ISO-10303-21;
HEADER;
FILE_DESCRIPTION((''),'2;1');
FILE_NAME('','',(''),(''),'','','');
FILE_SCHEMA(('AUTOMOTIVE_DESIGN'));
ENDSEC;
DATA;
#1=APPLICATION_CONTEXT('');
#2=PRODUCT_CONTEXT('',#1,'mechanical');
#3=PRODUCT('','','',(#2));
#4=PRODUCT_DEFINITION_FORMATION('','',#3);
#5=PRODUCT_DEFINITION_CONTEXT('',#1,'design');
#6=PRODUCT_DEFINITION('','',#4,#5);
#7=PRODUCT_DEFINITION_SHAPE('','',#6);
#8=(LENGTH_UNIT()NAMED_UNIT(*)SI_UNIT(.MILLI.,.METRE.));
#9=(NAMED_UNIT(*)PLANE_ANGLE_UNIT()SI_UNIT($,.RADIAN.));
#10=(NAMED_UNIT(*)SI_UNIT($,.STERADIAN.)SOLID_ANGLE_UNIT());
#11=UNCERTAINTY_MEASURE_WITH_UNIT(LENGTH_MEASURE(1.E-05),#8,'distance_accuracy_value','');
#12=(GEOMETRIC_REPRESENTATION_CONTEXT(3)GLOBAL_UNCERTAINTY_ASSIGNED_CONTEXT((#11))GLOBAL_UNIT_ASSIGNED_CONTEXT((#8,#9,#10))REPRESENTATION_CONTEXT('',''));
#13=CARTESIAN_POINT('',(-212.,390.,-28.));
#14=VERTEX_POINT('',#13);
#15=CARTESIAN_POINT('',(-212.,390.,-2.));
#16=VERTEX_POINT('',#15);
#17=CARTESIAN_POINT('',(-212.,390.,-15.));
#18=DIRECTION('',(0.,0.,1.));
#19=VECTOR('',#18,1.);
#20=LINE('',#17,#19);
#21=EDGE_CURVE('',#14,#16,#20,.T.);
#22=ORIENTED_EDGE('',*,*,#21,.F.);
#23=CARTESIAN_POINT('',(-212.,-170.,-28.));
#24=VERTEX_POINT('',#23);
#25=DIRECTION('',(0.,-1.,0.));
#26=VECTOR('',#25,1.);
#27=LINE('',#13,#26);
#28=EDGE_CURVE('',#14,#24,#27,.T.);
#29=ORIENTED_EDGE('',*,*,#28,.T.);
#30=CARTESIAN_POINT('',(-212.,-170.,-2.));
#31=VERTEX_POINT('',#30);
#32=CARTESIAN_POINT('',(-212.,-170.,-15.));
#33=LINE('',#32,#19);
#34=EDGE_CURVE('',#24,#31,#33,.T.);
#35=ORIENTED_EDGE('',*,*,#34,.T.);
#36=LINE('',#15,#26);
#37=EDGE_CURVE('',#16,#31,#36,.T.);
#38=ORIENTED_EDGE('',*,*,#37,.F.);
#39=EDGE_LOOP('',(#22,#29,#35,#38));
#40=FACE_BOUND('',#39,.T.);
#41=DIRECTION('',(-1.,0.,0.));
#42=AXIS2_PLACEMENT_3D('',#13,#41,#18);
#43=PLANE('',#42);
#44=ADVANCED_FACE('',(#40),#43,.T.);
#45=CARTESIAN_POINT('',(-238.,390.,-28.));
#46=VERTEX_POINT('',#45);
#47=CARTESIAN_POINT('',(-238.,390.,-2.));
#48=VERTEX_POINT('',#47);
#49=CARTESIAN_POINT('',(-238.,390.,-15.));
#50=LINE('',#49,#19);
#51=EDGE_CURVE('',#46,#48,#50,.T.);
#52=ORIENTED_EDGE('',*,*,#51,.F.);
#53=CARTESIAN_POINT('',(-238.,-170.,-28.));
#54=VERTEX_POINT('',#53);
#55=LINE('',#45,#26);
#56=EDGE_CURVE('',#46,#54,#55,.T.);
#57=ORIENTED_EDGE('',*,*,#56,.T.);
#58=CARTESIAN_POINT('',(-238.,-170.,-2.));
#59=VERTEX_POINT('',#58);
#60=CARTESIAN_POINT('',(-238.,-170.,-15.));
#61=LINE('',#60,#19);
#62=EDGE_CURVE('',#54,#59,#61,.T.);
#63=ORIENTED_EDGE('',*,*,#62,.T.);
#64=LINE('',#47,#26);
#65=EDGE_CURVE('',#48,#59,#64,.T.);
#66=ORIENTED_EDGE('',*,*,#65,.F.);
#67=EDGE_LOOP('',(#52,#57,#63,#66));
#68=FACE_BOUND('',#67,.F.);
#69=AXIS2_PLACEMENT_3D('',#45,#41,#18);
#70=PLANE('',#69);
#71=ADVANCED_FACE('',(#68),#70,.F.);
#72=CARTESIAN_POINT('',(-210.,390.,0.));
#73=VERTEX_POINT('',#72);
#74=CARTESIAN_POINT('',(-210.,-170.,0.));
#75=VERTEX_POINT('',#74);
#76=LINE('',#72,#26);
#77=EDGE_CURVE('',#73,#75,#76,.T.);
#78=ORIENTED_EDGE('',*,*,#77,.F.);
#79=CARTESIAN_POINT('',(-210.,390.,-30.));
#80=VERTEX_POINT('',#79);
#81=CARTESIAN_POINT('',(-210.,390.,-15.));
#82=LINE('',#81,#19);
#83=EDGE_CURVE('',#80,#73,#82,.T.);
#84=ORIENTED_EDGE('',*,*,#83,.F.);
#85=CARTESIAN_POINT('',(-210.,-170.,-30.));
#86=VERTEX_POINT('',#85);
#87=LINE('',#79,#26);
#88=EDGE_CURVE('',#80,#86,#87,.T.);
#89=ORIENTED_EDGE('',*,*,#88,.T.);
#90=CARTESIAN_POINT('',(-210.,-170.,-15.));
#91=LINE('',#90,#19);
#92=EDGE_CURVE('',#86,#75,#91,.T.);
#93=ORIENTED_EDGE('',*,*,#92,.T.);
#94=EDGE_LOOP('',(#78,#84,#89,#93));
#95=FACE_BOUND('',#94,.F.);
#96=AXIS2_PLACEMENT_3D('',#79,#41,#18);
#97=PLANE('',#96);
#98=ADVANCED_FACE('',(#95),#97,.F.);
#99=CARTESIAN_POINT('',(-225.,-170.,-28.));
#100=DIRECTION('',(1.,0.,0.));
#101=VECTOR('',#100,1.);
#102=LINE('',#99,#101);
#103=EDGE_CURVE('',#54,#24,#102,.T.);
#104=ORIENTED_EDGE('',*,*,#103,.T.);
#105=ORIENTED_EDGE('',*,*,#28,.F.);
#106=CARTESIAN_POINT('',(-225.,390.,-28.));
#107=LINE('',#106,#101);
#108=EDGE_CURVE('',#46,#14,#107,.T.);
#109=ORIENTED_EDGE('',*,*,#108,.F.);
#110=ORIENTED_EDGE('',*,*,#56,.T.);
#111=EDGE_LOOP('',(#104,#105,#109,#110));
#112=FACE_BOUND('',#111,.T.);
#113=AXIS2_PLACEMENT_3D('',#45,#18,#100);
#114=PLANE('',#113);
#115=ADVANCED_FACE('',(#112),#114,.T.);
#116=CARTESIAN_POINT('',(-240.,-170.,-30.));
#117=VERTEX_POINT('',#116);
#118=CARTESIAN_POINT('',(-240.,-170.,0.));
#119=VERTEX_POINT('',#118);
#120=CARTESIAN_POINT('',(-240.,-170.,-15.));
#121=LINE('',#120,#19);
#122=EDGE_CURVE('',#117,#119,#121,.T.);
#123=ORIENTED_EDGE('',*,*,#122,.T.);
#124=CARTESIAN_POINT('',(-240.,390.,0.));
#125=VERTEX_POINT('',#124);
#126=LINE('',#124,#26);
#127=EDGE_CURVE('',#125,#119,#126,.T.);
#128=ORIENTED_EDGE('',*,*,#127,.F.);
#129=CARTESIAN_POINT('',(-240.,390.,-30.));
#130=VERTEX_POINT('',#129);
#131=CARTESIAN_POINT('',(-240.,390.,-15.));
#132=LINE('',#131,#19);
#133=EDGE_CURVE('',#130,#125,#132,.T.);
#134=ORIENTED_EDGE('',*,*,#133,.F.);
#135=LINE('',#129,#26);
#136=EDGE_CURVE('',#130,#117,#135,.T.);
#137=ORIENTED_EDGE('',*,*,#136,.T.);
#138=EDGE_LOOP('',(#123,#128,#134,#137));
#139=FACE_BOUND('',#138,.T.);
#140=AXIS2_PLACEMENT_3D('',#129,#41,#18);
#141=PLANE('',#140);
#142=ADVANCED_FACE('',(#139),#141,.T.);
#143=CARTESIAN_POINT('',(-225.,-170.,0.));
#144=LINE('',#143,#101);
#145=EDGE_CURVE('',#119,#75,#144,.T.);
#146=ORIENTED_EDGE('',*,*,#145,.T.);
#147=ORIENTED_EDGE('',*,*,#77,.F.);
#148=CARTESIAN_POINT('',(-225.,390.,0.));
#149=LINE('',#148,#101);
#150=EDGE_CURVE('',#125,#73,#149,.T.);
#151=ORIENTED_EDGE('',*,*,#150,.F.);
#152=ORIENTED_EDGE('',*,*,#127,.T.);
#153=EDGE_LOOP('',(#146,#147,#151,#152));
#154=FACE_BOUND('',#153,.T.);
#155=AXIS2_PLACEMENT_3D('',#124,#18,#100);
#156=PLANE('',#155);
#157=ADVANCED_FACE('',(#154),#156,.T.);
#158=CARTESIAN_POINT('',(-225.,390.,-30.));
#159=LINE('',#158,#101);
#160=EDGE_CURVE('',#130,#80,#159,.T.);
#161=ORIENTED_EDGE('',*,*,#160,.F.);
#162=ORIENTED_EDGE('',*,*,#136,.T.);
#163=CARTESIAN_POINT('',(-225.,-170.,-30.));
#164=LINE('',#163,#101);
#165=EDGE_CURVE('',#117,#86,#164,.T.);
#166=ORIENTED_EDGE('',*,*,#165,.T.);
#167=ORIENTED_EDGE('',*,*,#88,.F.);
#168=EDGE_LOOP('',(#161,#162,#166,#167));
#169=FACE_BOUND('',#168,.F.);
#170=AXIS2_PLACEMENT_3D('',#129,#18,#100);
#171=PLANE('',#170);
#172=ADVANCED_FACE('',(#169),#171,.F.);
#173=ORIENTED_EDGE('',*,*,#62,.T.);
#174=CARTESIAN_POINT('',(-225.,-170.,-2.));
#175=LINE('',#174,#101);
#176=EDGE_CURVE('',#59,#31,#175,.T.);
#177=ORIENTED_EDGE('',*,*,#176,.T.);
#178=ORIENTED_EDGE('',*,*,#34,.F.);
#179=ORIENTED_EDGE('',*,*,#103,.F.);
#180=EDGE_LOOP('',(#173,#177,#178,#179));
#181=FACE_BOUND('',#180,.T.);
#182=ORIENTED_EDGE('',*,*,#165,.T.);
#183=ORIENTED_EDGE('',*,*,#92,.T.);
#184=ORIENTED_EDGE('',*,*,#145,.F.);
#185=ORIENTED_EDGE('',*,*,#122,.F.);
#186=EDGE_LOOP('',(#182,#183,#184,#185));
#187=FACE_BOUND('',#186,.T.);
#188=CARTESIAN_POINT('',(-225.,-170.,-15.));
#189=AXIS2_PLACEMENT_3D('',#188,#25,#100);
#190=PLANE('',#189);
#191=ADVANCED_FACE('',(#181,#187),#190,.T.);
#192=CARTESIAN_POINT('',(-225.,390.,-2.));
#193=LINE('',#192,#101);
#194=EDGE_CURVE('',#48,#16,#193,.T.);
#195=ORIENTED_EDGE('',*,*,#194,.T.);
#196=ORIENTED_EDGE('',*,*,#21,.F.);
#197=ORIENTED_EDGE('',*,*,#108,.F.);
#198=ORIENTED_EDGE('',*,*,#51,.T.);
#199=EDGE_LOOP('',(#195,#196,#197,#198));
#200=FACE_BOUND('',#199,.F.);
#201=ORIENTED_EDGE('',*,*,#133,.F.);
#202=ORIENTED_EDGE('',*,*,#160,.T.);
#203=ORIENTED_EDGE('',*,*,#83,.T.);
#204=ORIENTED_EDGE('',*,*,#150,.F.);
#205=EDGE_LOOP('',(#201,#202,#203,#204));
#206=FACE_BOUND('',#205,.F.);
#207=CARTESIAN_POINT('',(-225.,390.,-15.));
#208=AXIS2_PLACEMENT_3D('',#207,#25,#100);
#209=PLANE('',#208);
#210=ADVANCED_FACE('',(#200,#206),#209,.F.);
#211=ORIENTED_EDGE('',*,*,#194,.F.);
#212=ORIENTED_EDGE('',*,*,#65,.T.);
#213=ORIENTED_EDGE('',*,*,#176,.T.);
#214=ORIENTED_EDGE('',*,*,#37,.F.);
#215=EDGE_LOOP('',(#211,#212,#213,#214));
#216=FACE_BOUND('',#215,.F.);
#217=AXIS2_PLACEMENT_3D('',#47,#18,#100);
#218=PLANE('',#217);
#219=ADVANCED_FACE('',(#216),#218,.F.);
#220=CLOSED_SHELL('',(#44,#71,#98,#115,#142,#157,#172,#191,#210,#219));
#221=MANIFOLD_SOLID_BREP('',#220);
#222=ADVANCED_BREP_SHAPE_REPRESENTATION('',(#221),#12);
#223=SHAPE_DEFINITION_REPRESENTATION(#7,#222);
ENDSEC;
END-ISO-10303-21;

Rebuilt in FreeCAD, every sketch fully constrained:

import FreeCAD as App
import Part
import Sketcher
from FreeCAD import Vector
Q = App.Units.Quantity

doc = App.newDocument("Part")
body = doc.addObject("PartDesign::Body", "Body")

sketch1 = body.newObject("Sketcher::SketchObject", "Sketch")
sketch1.AttachmentSupport = (doc.getObject("XZ_Plane"), [""])
sketch1.MapMode = "FlatFace"
sketch1.addGeometry([
    Part.LineSegment(Vector(0, 0, 0), Vector(0, -30, 0)),
    Part.LineSegment(Vector(0, -30, 0), Vector(30, -30, 0)),
    Part.LineSegment(Vector(30, -30, 0), Vector(30, 0, 0)),
    Part.LineSegment(Vector(30, 0, 0), Vector(0, 0, 0)),
    Part.LineSegment(Vector(28, -28, 0), Vector(2, -28, 0)),
    Part.LineSegment(Vector(2, -28, 0), Vector(2, -2, 0)),
    Part.LineSegment(Vector(2, -2, 0), Vector(28, -2, 0)),
    Part.LineSegment(Vector(28, -2, 0), Vector(28, -28, 0)),
], False)
sketch1.addConstraint([
    Sketcher.Constraint("Coincident", 0, 2, 1, 1),
    Sketcher.Constraint("Coincident", 1, 2, 2, 1),
    Sketcher.Constraint("Coincident", 2, 2, 3, 1),
    Sketcher.Constraint("Coincident", 3, 2, 0, 1),
    Sketcher.Constraint("Coincident", 4, 2, 5, 1),
    Sketcher.Constraint("Coincident", 5, 2, 6, 1),
    Sketcher.Constraint("Coincident", 6, 2, 7, 1),
    Sketcher.Constraint("Coincident", 7, 2, 4, 1),
    Sketcher.Constraint("Vertical", 0),
    Sketcher.Constraint("Horizontal", 1),
    Sketcher.Constraint("Vertical", 2),
    Sketcher.Constraint("Horizontal", 3),
    Sketcher.Constraint("Horizontal", 4),
    Sketcher.Constraint("Vertical", 5),
    Sketcher.Constraint("Horizontal", 6),
    Sketcher.Constraint("Vertical", 7),
    Sketcher.Constraint("Coincident", 3, 2, -1, 1),
    Sketcher.Constraint("Equal", 3, 0),
    Sketcher.Constraint("Equal", 6, 5),
    Sketcher.Constraint("DistanceX", 1, 1, 1, 2, Q("30 mm")),
    Sketcher.Constraint("DistanceX", 4, 2, 4, 1, Q("26 mm")),
    Sketcher.Constraint("DistanceX", -1, 1, 4, 2, Q("2 mm")),
    Sketcher.Constraint("DistanceY", 4, 2, -1, 1, Q("28 mm")),
])
pad1 = body.newObject("PartDesign::Pad", "Pad")
pad1.Profile = sketch1
pad1.Length = 560
body2 = doc.addObject("PartDesign::Body", "Body001")
doc.recompute()

body.Placement = App.Placement(Vector(-240, 390, 0), App.Rotation(Vector(0, 0, 1), 0))
boolean = body2.newObject("PartDesign::Boolean", "Boolean")
boolean.Type = "Fuse"
boolean.addObjects([body])

doc.recompute()
